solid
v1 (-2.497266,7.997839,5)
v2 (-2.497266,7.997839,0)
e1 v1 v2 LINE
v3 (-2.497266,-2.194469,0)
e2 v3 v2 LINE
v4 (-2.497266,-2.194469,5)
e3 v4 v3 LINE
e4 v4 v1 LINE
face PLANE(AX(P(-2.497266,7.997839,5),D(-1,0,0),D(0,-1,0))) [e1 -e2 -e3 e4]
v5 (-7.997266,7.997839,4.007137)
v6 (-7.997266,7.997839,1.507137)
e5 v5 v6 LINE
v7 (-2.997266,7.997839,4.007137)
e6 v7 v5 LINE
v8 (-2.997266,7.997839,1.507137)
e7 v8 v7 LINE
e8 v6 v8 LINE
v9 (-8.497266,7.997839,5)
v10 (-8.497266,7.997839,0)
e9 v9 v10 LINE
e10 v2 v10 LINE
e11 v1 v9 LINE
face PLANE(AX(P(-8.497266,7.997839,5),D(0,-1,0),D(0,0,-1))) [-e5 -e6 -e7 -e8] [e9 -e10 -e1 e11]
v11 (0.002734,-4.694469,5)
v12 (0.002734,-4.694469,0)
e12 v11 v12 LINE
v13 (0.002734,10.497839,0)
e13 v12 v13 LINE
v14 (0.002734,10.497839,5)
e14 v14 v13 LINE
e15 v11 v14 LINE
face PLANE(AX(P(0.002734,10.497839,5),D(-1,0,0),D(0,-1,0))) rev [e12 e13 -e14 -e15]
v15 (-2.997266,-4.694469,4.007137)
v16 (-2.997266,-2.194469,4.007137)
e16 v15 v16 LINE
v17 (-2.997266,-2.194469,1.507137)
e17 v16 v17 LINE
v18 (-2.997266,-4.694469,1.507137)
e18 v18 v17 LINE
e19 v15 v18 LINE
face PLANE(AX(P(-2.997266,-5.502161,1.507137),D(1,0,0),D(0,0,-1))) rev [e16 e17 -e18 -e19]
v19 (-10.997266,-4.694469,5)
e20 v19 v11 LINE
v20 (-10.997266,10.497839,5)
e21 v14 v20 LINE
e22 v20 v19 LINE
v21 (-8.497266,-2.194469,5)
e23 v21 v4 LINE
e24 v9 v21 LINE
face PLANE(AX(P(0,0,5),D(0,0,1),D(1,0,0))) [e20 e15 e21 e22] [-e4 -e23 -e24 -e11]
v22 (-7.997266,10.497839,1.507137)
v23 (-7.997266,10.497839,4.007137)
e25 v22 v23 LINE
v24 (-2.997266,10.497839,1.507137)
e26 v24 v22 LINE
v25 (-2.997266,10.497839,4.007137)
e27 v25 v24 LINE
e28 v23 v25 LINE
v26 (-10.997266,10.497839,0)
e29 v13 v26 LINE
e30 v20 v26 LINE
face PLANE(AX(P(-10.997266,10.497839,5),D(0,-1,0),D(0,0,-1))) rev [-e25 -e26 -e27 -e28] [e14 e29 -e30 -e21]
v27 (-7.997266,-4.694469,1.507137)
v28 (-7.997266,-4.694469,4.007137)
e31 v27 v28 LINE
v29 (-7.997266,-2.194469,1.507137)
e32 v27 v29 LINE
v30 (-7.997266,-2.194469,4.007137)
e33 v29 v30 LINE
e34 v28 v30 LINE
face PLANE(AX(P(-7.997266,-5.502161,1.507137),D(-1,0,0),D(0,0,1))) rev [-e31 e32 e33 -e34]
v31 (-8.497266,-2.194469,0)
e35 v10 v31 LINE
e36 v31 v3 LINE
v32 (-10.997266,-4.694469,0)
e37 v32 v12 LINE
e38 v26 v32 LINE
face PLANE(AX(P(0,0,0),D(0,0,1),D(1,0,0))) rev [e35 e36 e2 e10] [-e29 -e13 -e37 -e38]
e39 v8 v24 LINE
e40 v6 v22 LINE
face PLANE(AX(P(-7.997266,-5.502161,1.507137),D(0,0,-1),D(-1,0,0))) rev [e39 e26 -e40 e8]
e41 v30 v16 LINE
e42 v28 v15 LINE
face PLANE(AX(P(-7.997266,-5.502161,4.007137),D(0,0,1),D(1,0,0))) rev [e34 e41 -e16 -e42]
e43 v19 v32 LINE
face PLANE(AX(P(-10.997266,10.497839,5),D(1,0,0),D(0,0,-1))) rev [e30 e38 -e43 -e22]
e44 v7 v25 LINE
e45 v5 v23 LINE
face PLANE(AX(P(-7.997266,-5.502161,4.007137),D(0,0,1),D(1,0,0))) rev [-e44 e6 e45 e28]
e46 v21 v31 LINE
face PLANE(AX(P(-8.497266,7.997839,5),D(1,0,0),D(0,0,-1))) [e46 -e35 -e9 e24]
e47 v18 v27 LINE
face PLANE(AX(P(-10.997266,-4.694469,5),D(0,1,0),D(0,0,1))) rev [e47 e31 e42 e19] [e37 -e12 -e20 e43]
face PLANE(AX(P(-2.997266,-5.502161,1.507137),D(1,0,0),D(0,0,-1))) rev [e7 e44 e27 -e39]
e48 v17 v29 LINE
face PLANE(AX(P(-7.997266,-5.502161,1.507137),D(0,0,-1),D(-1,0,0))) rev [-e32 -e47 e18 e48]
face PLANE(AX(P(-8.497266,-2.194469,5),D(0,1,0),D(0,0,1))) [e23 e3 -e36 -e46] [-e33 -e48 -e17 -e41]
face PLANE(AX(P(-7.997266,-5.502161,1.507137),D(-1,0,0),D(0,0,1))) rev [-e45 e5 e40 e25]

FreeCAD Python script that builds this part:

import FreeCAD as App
import Part
import Sketcher
from FreeCAD import Vector
Q = App.Units.Quantity

doc = App.newDocument("Part")
body = doc.addObject("PartDesign::Body", "Body")

# Sketch on XY plane
sketch1 = body.newObject("Sketcher::SketchObject", "Sketch")
sketch1.AttachmentSupport = (doc.getObject("XY_Plane"), [""])
sketch1.MapMode = "FlatFace"
sketch1.addGeometry(Part.LineSegment(Vector(-10.997266, 10.497839, 0), Vector(-10.997266, -4.694469, 0)), False)
sketch1.addGeometry(Part.LineSegment(Vector(-10.997266, -4.694469, 0), Vector(0.002734, -4.694469, 0)), False)
sketch1.addGeometry(Part.LineSegment(Vector(0.002734, -4.694469, 0), Vector(0.002734, 10.497839, 0)), False)
sketch1.addGeometry(Part.LineSegment(Vector(0.002734, 10.497839, 0), Vector(-10.997266, 10.497839, 0)), False)
sketch1.addGeometry(Part.LineSegment(Vector(-2.497266, -2.194469, 0), Vector(-8.497266, -2.194469, 0)), False)
sketch1.addGeometry(Part.LineSegment(Vector(-8.497266, -2.194469, 0), Vector(-8.497266, 7.997839, 0)), False)
sketch1.addGeometry(Part.LineSegment(Vector(-8.497266, 7.997839, 0), Vector(-2.497266, 7.997839, 0)), False)
sketch1.addGeometry(Part.LineSegment(Vector(-2.497266, 7.997839, 0), Vector(-2.497266, -2.194469, 0)), False)
sketch1.addConstraint(Sketcher.Constraint("Coincident", 0, 2, 1, 1))
sketch1.addConstraint(Sketcher.Constraint("Coincident", 1, 2, 2, 1))
sketch1.addConstraint(Sketcher.Constraint("Coincident", 2, 2, 3, 1))
sketch1.addConstraint(Sketcher.Constraint("Coincident", 3, 2, 0, 1))
sketch1.addConstraint(Sketcher.Constraint("Coincident", 4, 2, 5, 1))
sketch1.addConstraint(Sketcher.Constraint("Coincident", 5, 2, 6, 1))
sketch1.addConstraint(Sketcher.Constraint("Coincident", 6, 2, 7, 1))
sketch1.addConstraint(Sketcher.Constraint("Coincident", 7, 2, 4, 1))
sketch1.addConstraint(Sketcher.Constraint("Vertical", 0))
sketch1.addConstraint(Sketcher.Constraint("Horizontal", 1))
sketch1.addConstraint(Sketcher.Constraint("Vertical", 2))
sketch1.addConstraint(Sketcher.Constraint("Horizontal", 3))
sketch1.addConstraint(Sketcher.Constraint("Horizontal", 4))
sketch1.addConstraint(Sketcher.Constraint("Vertical", 5))
sketch1.addConstraint(Sketcher.Constraint("Horizontal", 6))
sketch1.addConstraint(Sketcher.Constraint("Vertical", 7))
sketch1.addConstraint(Sketcher.Constraint("DistanceX", 1, 1, 1, 2, Q("11 mm")))
sketch1.addConstraint(Sketcher.Constraint("DistanceX", 4, 2, 4, 1, Q("6 mm")))
sketch1.addConstraint(Sketcher.Constraint("DistanceX", 0, 2, 4, 2, Q("2.5 mm")))
sketch1.addConstraint(Sketcher.Constraint("DistanceY", 0, 2, 4, 2, Q("2.5 mm")))
sketch1.addConstraint(Sketcher.Constraint("DistanceY", 5, 2, 3, 2, Q("2.5 mm")))
sketch1.addConstraint(Sketcher.Constraint("DistanceY", 0, 2, 0, 1, Q("15.192308 mm")))
sketch1.addConstraint(Sketcher.Constraint("DistanceY", 0, 2, -1, 1, Q("4.694469 mm")))
sketch1.addConstraint(Sketcher.Constraint("DistanceX", 0, 2, -1, 1, Q("10.997266 mm")))
pad1 = body.newObject("PartDesign::Pad", "Pad")
pad1.Profile = sketch1
pad1.Length = 5

# Sketch on XZ plane
sketch2 = body.newObject("Sketcher::SketchObject", "Sketch001")
sketch2.AttachmentSupport = (doc.getObject("XZ_Plane"), [""])
sketch2.MapMode = "FlatFace"
sketch2.AttachmentOffset = App.Placement(Vector(0, 0, -10.497839), App.Rotation())
sketch2.addGeometry(Part.LineSegment(Vector(-7.997266, 1.507137, 0), Vector(-7.997266, 4.007137, 0)), False)
sketch2.addGeometry(Part.LineSegment(Vector(-7.997266, 4.007137, 0), Vector(-2.997266, 4.007137, 0)), False)
sketch2.addGeometry(Part.LineSegment(Vector(-2.997266, 4.007137, 0), Vector(-2.997266, 1.507137, 0)), False)
sketch2.addGeometry(Part.LineSegment(Vector(-2.997266, 1.507137, 0), Vector(-7.997266, 1.507137, 0)), False)
sketch2.addConstraint(Sketcher.Constraint("Coincident", 0, 2, 1, 1))
sketch2.addConstraint(Sketcher.Constraint("Coincident", 1, 2, 2, 1))
sketch2.addConstraint(Sketcher.Constraint("Coincident", 2, 2, 3, 1))
sketch2.addConstraint(Sketcher.Constraint("Coincident", 3, 2, 0, 1))
sketch2.addConstraint(Sketcher.Constraint("Vertical", 0))
sketch2.addConstraint(Sketcher.Constraint("Horizontal", 1))
sketch2.addConstraint(Sketcher.Constraint("Vertical", 2))
sketch2.addConstraint(Sketcher.Constraint("Horizontal", 3))
sketch2.addConstraint(Sketcher.Constraint("DistanceX", 1, 1, 1, 2, Q("5 mm")))
sketch2.addConstraint(Sketcher.Constraint("DistanceY", 0, 1, 0, 2, Q("2.5 mm")))
sketch2.addConstraint(Sketcher.Constraint("DistanceX", 0, 2, -1, 1, Q("7.997266 mm")))
sketch2.addConstraint(Sketcher.Constraint("DistanceY", -1, 1, 0, 2, Q("4.007137 mm")))
pocket1 = body.newObject("PartDesign::Pocket", "Pocket")
pocket1.Profile = sketch2
pocket1.Length = 16
pocket1.Reversed = True

doc.recompute()
